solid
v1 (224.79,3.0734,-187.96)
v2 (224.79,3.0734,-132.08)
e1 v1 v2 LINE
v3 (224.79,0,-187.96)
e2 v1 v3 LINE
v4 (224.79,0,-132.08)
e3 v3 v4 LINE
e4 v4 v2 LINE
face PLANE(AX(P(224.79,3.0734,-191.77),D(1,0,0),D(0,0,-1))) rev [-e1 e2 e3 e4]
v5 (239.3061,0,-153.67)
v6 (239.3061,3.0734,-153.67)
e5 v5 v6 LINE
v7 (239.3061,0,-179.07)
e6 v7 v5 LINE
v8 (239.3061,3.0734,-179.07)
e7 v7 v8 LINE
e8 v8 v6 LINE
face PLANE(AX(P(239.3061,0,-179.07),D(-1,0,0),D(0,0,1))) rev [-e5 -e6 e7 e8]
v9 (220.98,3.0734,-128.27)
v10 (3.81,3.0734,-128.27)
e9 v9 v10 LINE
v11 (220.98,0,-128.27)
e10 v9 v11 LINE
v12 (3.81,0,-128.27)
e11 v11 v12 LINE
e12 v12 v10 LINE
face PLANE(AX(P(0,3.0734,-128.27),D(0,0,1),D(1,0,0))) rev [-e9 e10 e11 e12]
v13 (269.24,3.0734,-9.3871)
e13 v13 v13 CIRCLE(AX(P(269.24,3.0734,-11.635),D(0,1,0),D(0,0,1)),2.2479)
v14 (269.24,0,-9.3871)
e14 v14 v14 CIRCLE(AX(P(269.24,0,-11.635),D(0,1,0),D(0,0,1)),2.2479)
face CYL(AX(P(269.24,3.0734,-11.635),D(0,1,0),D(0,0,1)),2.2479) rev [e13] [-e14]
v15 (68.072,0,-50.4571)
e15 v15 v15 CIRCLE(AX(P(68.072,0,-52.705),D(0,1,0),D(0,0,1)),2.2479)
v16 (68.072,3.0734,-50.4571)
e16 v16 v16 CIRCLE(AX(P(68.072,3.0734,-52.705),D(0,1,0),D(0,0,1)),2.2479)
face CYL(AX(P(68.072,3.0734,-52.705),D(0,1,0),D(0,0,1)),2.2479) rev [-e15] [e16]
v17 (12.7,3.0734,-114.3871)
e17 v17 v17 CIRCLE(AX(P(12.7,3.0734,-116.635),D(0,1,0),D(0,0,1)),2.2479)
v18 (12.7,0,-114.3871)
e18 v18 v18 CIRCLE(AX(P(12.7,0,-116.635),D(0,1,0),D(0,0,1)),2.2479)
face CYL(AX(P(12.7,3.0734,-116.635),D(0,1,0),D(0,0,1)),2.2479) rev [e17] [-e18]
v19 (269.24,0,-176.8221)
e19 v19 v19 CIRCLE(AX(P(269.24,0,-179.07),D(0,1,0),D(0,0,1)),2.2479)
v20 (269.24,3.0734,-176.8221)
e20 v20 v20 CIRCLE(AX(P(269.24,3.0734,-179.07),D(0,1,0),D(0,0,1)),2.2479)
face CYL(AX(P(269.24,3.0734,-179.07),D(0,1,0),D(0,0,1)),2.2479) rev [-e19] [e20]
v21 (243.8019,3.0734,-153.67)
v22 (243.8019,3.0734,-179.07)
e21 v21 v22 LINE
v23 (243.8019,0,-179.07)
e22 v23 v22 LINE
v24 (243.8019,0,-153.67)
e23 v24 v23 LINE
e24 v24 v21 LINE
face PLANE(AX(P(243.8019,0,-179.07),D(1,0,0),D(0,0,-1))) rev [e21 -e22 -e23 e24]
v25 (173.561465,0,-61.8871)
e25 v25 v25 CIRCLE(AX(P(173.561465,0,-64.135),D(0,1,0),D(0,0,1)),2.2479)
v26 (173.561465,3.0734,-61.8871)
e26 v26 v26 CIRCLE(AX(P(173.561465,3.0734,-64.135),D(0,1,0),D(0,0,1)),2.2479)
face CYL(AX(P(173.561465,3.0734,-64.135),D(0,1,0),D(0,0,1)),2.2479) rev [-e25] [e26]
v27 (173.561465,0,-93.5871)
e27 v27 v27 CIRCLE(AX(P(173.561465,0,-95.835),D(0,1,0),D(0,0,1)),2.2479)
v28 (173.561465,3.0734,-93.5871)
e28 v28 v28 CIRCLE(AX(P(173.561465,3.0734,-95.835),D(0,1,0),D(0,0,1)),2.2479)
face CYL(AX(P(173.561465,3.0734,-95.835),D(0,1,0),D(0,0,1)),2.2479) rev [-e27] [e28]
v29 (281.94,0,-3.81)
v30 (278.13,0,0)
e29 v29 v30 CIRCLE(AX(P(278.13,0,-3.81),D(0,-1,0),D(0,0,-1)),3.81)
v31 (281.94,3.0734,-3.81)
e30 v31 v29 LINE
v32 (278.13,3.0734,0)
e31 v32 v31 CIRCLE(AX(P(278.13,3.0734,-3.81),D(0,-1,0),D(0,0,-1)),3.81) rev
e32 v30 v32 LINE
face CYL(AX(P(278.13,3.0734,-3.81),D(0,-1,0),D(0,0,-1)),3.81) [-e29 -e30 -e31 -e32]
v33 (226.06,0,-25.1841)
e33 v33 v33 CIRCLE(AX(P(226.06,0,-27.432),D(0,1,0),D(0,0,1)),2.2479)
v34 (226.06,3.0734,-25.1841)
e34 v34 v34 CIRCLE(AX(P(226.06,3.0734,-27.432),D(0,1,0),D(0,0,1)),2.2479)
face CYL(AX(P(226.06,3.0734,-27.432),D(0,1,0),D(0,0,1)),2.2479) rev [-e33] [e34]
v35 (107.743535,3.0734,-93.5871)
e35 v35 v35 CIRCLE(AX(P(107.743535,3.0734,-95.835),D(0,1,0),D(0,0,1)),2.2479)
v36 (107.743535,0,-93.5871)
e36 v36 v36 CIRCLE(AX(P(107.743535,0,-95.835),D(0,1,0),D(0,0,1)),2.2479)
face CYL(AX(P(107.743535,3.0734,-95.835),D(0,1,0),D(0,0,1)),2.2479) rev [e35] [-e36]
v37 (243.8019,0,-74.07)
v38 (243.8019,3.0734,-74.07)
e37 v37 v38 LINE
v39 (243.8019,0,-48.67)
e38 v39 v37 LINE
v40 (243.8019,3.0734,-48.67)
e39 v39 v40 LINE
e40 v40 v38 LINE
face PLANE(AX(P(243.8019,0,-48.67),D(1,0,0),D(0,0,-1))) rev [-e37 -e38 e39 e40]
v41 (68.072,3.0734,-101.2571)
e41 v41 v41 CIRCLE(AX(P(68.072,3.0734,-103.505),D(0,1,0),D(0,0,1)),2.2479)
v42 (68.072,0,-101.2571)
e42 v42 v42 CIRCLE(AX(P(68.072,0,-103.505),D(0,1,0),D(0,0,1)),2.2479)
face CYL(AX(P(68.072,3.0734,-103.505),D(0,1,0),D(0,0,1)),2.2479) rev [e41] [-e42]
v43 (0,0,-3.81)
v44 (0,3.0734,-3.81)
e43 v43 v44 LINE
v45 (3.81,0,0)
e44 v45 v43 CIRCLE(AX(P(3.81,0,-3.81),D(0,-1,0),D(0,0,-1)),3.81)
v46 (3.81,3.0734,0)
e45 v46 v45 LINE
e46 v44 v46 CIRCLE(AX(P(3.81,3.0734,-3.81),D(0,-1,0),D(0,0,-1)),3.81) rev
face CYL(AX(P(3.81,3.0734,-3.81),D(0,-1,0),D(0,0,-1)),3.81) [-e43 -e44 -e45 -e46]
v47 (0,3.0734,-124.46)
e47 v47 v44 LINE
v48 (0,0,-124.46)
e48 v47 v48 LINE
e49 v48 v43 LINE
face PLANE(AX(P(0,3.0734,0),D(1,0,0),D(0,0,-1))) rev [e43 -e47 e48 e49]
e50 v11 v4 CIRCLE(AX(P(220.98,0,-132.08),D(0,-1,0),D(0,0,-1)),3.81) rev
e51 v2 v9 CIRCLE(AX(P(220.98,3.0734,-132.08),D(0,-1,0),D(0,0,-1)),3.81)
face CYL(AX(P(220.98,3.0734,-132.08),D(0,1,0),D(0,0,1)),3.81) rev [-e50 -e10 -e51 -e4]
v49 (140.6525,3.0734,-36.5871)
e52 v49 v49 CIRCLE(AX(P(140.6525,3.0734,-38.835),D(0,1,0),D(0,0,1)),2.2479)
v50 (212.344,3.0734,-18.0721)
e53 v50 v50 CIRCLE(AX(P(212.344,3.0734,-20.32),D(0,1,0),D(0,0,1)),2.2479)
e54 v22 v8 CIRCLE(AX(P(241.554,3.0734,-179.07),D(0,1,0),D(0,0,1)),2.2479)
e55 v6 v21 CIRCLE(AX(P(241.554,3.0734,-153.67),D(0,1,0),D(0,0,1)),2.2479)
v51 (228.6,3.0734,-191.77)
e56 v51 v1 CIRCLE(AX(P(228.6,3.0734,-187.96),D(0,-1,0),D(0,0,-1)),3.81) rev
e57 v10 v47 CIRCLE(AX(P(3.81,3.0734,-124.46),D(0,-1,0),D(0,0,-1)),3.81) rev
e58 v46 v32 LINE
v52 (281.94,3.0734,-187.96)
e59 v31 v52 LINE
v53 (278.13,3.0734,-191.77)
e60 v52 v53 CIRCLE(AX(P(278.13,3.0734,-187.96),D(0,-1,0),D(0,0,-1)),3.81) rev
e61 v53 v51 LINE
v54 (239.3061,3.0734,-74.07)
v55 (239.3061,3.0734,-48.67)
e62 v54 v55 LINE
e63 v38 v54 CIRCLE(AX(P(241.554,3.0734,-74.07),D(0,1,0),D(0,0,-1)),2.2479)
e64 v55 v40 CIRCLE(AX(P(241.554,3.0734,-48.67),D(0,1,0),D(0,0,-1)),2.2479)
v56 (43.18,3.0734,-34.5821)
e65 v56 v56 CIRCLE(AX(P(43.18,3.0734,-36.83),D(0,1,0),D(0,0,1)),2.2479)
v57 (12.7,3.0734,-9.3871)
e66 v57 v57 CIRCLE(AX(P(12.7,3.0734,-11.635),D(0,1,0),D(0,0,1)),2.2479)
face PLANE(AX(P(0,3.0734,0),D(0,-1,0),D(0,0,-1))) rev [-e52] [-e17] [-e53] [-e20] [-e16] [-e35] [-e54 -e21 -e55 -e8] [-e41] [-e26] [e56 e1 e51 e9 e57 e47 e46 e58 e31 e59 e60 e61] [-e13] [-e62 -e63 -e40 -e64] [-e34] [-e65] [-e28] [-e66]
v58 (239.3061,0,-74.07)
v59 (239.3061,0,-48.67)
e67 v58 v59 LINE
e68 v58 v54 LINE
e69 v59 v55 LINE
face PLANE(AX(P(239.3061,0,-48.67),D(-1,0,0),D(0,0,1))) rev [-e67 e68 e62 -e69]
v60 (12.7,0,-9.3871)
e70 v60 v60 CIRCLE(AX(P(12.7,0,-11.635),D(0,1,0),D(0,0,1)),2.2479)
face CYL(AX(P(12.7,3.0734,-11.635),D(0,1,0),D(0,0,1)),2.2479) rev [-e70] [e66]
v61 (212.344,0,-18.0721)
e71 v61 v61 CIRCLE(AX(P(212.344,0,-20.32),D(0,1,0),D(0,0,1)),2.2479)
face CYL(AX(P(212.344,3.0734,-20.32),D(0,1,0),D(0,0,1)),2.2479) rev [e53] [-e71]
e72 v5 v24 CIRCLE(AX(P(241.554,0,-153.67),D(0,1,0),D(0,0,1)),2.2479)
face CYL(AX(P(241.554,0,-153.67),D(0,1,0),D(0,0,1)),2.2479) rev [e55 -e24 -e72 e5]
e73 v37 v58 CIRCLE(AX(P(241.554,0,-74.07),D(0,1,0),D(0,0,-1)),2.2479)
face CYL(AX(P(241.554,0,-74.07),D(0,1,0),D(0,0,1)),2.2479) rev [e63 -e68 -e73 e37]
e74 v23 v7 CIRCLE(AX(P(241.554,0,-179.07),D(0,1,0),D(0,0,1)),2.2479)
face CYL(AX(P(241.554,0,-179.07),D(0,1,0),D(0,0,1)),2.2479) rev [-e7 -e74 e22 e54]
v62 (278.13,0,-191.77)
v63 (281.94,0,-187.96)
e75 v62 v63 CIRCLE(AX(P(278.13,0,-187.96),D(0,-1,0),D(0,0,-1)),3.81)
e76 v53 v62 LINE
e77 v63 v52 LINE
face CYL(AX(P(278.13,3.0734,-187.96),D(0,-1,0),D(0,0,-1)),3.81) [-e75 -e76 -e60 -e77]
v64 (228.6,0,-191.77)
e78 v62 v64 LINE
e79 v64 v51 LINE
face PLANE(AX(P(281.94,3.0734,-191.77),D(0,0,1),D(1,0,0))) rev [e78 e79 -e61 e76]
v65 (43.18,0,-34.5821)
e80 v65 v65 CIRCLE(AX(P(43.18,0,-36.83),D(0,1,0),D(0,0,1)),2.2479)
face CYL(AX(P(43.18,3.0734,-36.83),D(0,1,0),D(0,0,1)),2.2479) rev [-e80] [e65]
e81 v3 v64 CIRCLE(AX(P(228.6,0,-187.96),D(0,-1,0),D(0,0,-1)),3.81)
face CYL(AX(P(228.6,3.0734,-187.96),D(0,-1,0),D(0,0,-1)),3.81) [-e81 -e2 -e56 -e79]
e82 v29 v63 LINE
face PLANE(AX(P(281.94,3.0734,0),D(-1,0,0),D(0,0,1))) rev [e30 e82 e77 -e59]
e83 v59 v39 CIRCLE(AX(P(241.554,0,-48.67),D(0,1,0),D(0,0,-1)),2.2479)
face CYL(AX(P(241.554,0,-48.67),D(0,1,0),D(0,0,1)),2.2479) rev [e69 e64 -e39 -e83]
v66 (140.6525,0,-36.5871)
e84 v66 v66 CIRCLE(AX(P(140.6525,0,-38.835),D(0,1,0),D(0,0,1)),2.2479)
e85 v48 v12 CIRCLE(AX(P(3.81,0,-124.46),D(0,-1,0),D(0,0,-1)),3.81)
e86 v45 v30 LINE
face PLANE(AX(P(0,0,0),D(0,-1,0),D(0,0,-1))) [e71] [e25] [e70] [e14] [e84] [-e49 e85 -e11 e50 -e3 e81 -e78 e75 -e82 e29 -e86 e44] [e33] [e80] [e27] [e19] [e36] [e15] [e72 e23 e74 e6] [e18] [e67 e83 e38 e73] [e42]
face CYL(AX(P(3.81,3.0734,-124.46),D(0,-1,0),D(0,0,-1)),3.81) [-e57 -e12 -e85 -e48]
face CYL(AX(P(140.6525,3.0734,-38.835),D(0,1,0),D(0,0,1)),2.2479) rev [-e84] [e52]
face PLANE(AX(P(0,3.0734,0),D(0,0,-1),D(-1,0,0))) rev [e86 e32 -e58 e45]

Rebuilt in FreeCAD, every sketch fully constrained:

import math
import FreeCAD as App
import Part
import Sketcher

V = App.Vector
Q = App.Units.Quantity


def edges_at(feature, points):
    """Names of the edges that pass closest to the given points."""
    edges = feature.Shape.Edges
    near = lambda p: min(range(len(edges)), key=lambda i: edges[i].distToShape(Part.Vertex(*p))[0])
    return sorted({f"Edge{near(p) + 1}" for p in points})

doc = App.newDocument("Part")
params = doc.addObject("Spreadsheet::Sheet", "Params")
for row, (alias, value) in enumerate([
    ("sketch1_width", "11.1 in"),
    ("sketch1_height", "2.5 in"),
    ("sketch1_width2", "2.25 in"),
    ("sketch1_height2", "7.55 in"),
    ("pad1_length", "0.121 in"),
    ("sketch2_diameter", "0.177 in"),
    ("hole_diameter", "0.177 in"),
    ("sketch3_diameter", "0.177 in"),
    ("hole2_diameter", "0.177 in"),
    ("fillet_radius", "0.15 in"),
    ("sketch4_height", "1 in"),
], start=1):
    params.set(f"A{row}", alias)
    params.set(f"B{row}", "=" + value)
    params.setAlias(f"B{row}", alias)

body = doc.addObject("PartDesign::Body", "Body")

# Sketch on XZ plane
sketch1 = body.newObject("Sketcher::SketchObject", "Sketch")
sketch1.AttachmentSupport = (doc.getObject("XZ_Plane"), [""])
sketch1.MapMode = "FlatFace"
sketch1.addGeometry([
    Part.LineSegment(V(0, 0, 0), V(282, 0, 0)),  # 0
    Part.LineSegment(V(282, 0, 0), V(282, -192, 0)),  # 1
    Part.LineSegment(V(282, -192, 0), V(225, -192, 0)),  # 2
    Part.LineSegment(V(225, -192, 0), V(225, -128, 0)),  # 3
    Part.LineSegment(V(225, -128, 0), V(0, -128, 0)),  # 4
    Part.LineSegment(V(0, -128, 0), V(0, 0, 0)),  # 5
], False)
sketch1.addConstraint([
    Sketcher.Constraint("Coincident", 0, 2, 1, 1),
    Sketcher.Constraint("Coincident", 1, 2, 2, 1),
    Sketcher.Constraint("Coincident", 2, 2, 3, 1),
    Sketcher.Constraint("Coincident", 3, 2, 4, 1),
    Sketcher.Constraint("Coincident", 4, 2, 5, 1),
    Sketcher.Constraint("Coincident", 5, 2, 0, 1),
    Sketcher.Constraint("Horizontal", 0),
    Sketcher.Constraint("Vertical", 1),
    Sketcher.Constraint("Horizontal", 2),
    Sketcher.Constraint("Vertical", 3),
    Sketcher.Constraint("Horizontal", 4),
    Sketcher.Constraint("Vertical", 5),
    Sketcher.Constraint("Coincident", 5, 2, -1, 1),
    Sketcher.Constraint("DistanceX", 0, 1, 0, 2, Q("11.1 in")),
    Sketcher.Constraint("DistanceY", 3, 1, 3, 2, Q("2.5 in")),
    Sketcher.Constraint("DistanceX", 2, 2, 2, 1, Q("2.25 in")),
    Sketcher.Constraint("DistanceY", 1, 2, 1, 1, Q("7.55 in")),
])
sketch1.setExpression("Constraints[13]", "Params.sketch1_width")
sketch1.setExpression("Constraints[14]", "Params.sketch1_height")
sketch1.setExpression("Constraints[15]", "Params.sketch1_width2")
sketch1.setExpression("Constraints[16]", "Params.sketch1_height2")
pad1 = body.newObject("PartDesign::Pad", "Pad")
pad1.Profile = sketch1
pad1.setExpression("Length", "Params.pad1_length")
pad1.Reversed = True

# Sketch on XZ plane
sketch2 = body.newObject("Sketcher::SketchObject", "Sketch001")
sketch2.AttachmentSupport = (doc.getObject("XZ_Plane"), [""])
sketch2.MapMode = "FlatFace"
sketch2.AttachmentOffset = App.Placement(V(0, 0, -0.121 * 25.4), App.Rotation())
sketch2.addGeometry([
    Part.Circle(V(140.7, -38.8, 0), V(0, 0, 1), 2.2),
    Part.Circle(V(107.7, -95.8, 0), V(0, 0, 1), 2.2),
    Part.Circle(V(173.6, -95.8, 0), V(0, 0, 1), 2.2),
], False)
sketch2.addConstraint([
    Sketcher.Constraint("Equal", 0, 1),
    Sketcher.Constraint("Equal", 1, 2),
    Sketcher.Constraint("Horizontal", 1, 3, 2, 3),
    Sketcher.Constraint("Diameter", 0, Q("0.177 in")),
    Sketcher.Constraint("DistanceX", -1, 1, 0, 3, Q("5.5375 in")),
    Sketcher.Constraint("DistanceY", 0, 3, -1, 1, Q("38.835 mm")),
    Sketcher.Constraint("DistanceY", 1, 3, -1, 1, Q("95.835 mm")),
    Sketcher.Constraint("DistanceX", 1, 3, 2, 3, Q("65.817931 mm")),
    Sketcher.Constraint("DistanceX", -1, 1, 1, 3, Q("107.743535 mm")),
])
sketch2.setExpression("Constraints[3]", "Params.sketch2_diameter")
doc.recompute()
hole = body.newObject("PartDesign::Hole", "Hole")
hole.Profile = sketch2
hole.ThreadType = "None"
hole.setExpression("Diameter", "Params.hole_diameter")
hole.DepthType = "ThroughAll"
hole.Reversed = True

# Sketch on XZ plane
sketch3 = body.newObject("Sketcher::SketchObject", "Sketch002")
sketch3.AttachmentSupport = (doc.getObject("XZ_Plane"), [""])
sketch3.MapMode = "FlatFace"
sketch3.AttachmentOffset = App.Placement(V(0, 0, -0.121 * 25.4), App.Rotation())
sketch3.addGeometry([
    Part.Circle(V(12.7, -11.6, 0), V(0, 0, 1), 2.2),  # 0
    Part.Circle(V(269.2, -11.6, 0), V(0, 0, 1), 2.2),  # 1
    Part.Circle(V(269.2, -179.1, 0), V(0, 0, 1), 2.2),  # 2
    Part.Circle(V(12.7, -116.6, 0), V(0, 0, 1), 2.2),  # 3
    Part.Circle(V(173.6, -64.1, 0), V(0, 0, 1), 2.2),  # 4
    Part.Circle(V(140.7, -38.8, 0), V(0, 0, 1), 2.2),  # 5
    Part.Circle(V(107.7, -95.8, 0), V(0, 0, 1), 2.2),  # 6
    Part.Circle(V(173.6, -95.8, 0), V(0, 0, 1), 2.2),  # 7
    Part.Circle(V(212.3, -20.3, 0), V(0, 0, 1), 2.2),  # 8
    Part.Circle(V(68.1, -103.5, 0), V(0, 0, 1), 2.2),  # 9
    Part.Circle(V(68.1, -52.7, 0), V(0, 0, 1), 2.2),  # 10
    Part.Circle(V(43.2, -36.8, 0), V(0, 0, 1), 2.2),  # 11
    Part.Circle(V(226.1, -27.4, 0), V(0, 0, 1), 2.2),  # 12
], False)
sketch3.addConstraint([
    Sketcher.Constraint("Equal", 0, 1),
    Sketcher.Constraint("Equal", 1, 2),
    Sketcher.Constraint("Equal", 2, 3),
    Sketcher.Constraint("Equal", 3, 4),
    Sketcher.Constraint("Equal", 4, 5),
    Sketcher.Constraint("Equal", 5, 6),
    Sketcher.Constraint("Equal", 6, 7),
    Sketcher.Constraint("Equal", 7, 8),
    Sketcher.Constraint("Equal", 8, 9),
    Sketcher.Constraint("Equal", 9, 10),
    Sketcher.Constraint("Equal", 10, 11),
    Sketcher.Constraint("Equal", 11, 12),
    Sketcher.Constraint("Horizontal", 0, 3, 1, 3),
    Sketcher.Constraint("Horizontal", 6, 3, 7, 3),
    Sketcher.Constraint("Vertical", 1, 3, 2, 3),
    Sketcher.Constraint("Vertical", 0, 3, 3, 3),
    Sketcher.Constraint("Vertical", 4, 3, 7, 3),
    Sketcher.Constraint("Vertical", 9, 3, 10, 3),
    Sketcher.Constraint("Diameter", 0, Q("0.177 in")),
    Sketcher.Constraint("DistanceY", 9, 3, 10, 3, Q("2 in")),
    Sketcher.Constraint("DistanceX", -1, 1, 0, 3, Q("0.5 in")),
    Sketcher.Constraint("DistanceX", -1, 1, 1, 3, Q("10.6 in")),
    Sketcher.Constraint("DistanceY", 8, 3, -1, 1, Q("0.8 in")),
    Sketcher.Constraint("DistanceX", -1, 1, 11, 3, Q("1.7 in")),
    Sketcher.Constraint("DistanceX", -1, 1, 12, 3, Q("8.9 in")),
    Sketcher.Constraint("DistanceY", 2, 3, -1, 1, Q("7.05 in")),
    Sketcher.Constraint("DistanceX", -1, 1, 8, 3, Q("8.36 in")),
    Sketcher.Constraint("DistanceX", -1, 1, 9, 3, Q("2.68 in")),
    Sketcher.Constraint("DistanceY", 11, 3, -1, 1, Q("1.45 in")),
    Sketcher.Constraint("DistanceY", 12, 3, -1, 1, Q("1.08 in")),
    Sketcher.Constraint("DistanceY", 4, 3, -1, 1, Q("2.525 in")),
    Sketcher.Constraint("DistanceY", 9, 3, -1, 1, Q("4.075 in")),
    Sketcher.Constraint("DistanceX", 5, 3, 1, 3, Q("5.0625 in")),
    Sketcher.Constraint("DistanceY", 0, 3, -1, 1, Q("11.635 mm")),
    Sketcher.Constraint("DistanceY", 3, 3, -1, 1, Q("116.635 mm")),
    Sketcher.Constraint("DistanceY", 5, 3, -1, 1, Q("38.835 mm")),
    Sketcher.Constraint("DistanceY", 6, 3, -1, 1, Q("95.835 mm")),
    Sketcher.Constraint("DistanceX", 6, 3, 4, 3, Q("65.817931 mm")),
    Sketcher.Constraint("DistanceX", -1, 1, 4, 3, Q("173.561465 mm")),
])
sketch3.setExpression("Constraints[18]", "Params.sketch3_diameter")
doc.recompute()
hole2 = body.newObject("PartDesign::Hole", "Hole001")
hole2.Profile = sketch3
hole2.ThreadType = "None"
hole2.setExpression("Diameter", "Params.hole2_diameter")
hole2.DepthType = "ThroughAll"
hole2.Reversed = True
doc.recompute()

fillet = body.newObject("PartDesign::Fillet", "Fillet")
fillet.Base = (hole2, edges_at(hole2, [
    (0, 1.537, -128.27),
    (224.79, 1.537, -128.27),
    (224.79, 1.537, -191.77),
    (281.94, 1.537, -191.77),
    (281.94, 1.537, 0),
    (0, 1.537, 0),
]))
fillet.setExpression("Radius", "Params.fillet_radius")

# Sketch on XZ plane
sketch4 = body.newObject("Sketcher::SketchObject", "Sketch003")
sketch4.AttachmentSupport = (doc.getObject("XZ_Plane"), [""])
sketch4.MapMode = "FlatFace"
sketch4.AttachmentOffset = App.Placement(V(0, 0, -0.121 * 25.4), App.Rotation())
sketch4.addGeometry([
    Part.LineSegment(V(243.8, -153.7, 0), V(243.8, -179.1, 0)),  # 0
    Part.ArcOfCircle(Part.Circle(V(241.6, -179.1, 0), V(0, 0, 1), 2.2), math.radians(180), math.radians(360)),  # 1
    Part.LineSegment(V(239.3, -179.1, 0), V(239.3, -153.7, 0)),  # 2
    Part.ArcOfCircle(Part.Circle(V(241.6, -153.7, 0), V(0, 0, 1), 2.2), math.radians(0), math.radians(180)),  # 3
    Part.LineSegment(V(243.8, -48.7, 0), V(243.8, -74.1, 0)),  # 4
    Part.ArcOfCircle(Part.Circle(V(241.6, -74.1, 0), V(0, 0, 1), 2.2), math.radians(180), math.radians(360)),  # 5
    Part.LineSegment(V(239.3, -74.1, 0), V(239.3, -48.7, 0)),  # 6
    Part.ArcOfCircle(Part.Circle(V(241.6, -48.7, 0), V(0, 0, 1), 2.2), math.radians(0), math.radians(180)),  # 7
], False)
sketch4.addConstraint([
    Sketcher.Constraint("Tangent", 0, 2, 1, 2),
    Sketcher.Constraint("Tangent", 1, 1, 2, 1),
    Sketcher.Constraint("Tangent", 2, 2, 3, 2),
    Sketcher.Constraint("Tangent", 3, 1, 0, 1),
    Sketcher.Constraint("Tangent", 4, 2, 5, 2),
    Sketcher.Constraint("Tangent", 5, 1, 6, 1),
    Sketcher.Constraint("Tangent", 6, 2, 7, 2),
    Sketcher.Constraint("Tangent", 7, 1, 4, 1),
    Sketcher.Constraint("Vertical", 0),
    Sketcher.Constraint("Vertical", 2),
    Sketcher.Constraint("Vertical", 4),
    Sketcher.Constraint("Vertical", 6),
    Sketcher.Constraint("Equal", 3, 5),
    Sketcher.Constraint("Vertical", 3, 3, 5, 3),
    Sketcher.Constraint("Equal", 2, 4),
    Sketcher.Constraint("DistanceY", 0, 2, 0, 1, Q("1 in")),
    Sketcher.Constraint("Radius", 1, Q("0.0885 in")),
    Sketcher.Constraint("DistanceX", -1, 1, 1, 3, Q("9.51 in")),
    Sketcher.Constraint("DistanceY", 1, 3, -1, 1, Q("7.05 in")),
    Sketcher.Constraint("DistanceY", 5, 3, -1, 1, Q("74.07 mm")),
])
sketch4.setExpression("Constraints[15]", "Params.sketch4_height")
pocket1 = body.newObject("PartDesign::Pocket", "Pocket")
pocket1.Profile = sketch4
pocket1.Type = "ThroughAll"
pocket1.Reversed = True

doc.recompute()
